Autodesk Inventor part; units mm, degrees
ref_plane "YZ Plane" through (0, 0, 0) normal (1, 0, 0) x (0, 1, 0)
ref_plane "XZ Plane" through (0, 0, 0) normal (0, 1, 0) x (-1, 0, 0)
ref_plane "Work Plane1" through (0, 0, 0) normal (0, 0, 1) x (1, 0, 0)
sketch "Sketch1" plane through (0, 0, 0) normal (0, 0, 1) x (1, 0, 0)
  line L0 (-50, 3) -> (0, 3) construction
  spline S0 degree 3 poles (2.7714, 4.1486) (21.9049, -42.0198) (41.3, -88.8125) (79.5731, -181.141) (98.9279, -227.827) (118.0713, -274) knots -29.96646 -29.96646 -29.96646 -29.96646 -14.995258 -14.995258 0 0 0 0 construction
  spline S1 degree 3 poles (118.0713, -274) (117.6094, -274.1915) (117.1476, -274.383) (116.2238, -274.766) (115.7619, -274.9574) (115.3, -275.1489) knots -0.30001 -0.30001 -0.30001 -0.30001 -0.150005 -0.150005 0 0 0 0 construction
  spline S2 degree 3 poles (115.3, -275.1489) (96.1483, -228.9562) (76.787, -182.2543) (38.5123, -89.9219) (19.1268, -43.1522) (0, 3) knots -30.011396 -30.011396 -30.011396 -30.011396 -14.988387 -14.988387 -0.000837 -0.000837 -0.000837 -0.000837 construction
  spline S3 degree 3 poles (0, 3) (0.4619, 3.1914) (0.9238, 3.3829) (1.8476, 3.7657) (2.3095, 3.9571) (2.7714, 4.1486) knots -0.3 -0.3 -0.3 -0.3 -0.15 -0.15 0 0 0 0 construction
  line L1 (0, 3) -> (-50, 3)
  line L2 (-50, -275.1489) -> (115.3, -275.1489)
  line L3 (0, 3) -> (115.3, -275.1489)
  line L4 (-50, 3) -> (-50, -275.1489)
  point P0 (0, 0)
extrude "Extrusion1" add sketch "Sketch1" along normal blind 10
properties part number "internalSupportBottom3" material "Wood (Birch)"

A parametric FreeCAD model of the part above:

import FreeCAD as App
import Part
import Sketcher


def add_polygon(sketch, points):
    """Adds a closed chain of lines whose ends are joined by coincident constraints."""
    first, n = sketch.GeometryCount, len(points)
    for a, b in zip(points, points[1:] + points[:1]):
        sketch.addGeometry(Part.LineSegment(App.Vector(*a, 0), App.Vector(*b, 0)), False)
    for i in range(n):
        sketch.addConstraint(Sketcher.Constraint("Coincident", first + i, 2, first + (i + 1) % n, 1))

doc = App.newDocument("Part")
params = doc.addObject("Spreadsheet::Sheet", "Params")
for row, (alias, value) in enumerate([
    ("sketch1_width", "50 mm"),
    ("sketch1_width2", "165.3 mm"),
    ("pad1_length", "10 mm"),
], start=1):
    params.set(f"A{row}", alias)
    params.set(f"B{row}", "=" + value)
    params.setAlias(f"B{row}", alias)

body = doc.addObject("PartDesign::Body", "Body")

# Sketch on XY plane
sketch1 = body.newObject("Sketcher::SketchObject", "Sketch")
sketch1.AttachmentSupport = (doc.getObject("XY_Plane"), [""])
sketch1.MapMode = "FlatFace"
add_polygon(sketch1, [(115.3, -275.1489), (0, 3), (-50, 3), (-50, -275.1489)])  # lines 0-3
sketch1.addConstraint(Sketcher.Constraint("Horizontal", 1))
sketch1.addConstraint(Sketcher.Constraint("Vertical", 2))
sketch1.addConstraint(Sketcher.Constraint("Horizontal", 3))
sketch1.addConstraint(Sketcher.Constraint("PointOnObject", 0, 2, -2))
sketch1.addConstraint(Sketcher.Constraint("DistanceX", 1, 2, 1, 1, 50.0))
sketch1.addConstraint(Sketcher.Constraint("DistanceX", 3, 1, 3, 2, 165.3))
sketch1.addConstraint(Sketcher.Constraint("DistanceY", -1, 1, 0, 2, 3.0))
sketch1.addConstraint(Sketcher.Constraint("DistanceY", 2, 2, 2, 1, 278.149))
sketch1.setExpression("Constraints[8]", "Params.sketch1_width")
sketch1.setExpression("Constraints[9]", "Params.sketch1_width2")
pad1 = body.newObject("PartDesign::Pad", "Pad")
pad1.Profile = sketch1
pad1.setExpression("Length", "Params.pad1_length")

doc.recompute()
